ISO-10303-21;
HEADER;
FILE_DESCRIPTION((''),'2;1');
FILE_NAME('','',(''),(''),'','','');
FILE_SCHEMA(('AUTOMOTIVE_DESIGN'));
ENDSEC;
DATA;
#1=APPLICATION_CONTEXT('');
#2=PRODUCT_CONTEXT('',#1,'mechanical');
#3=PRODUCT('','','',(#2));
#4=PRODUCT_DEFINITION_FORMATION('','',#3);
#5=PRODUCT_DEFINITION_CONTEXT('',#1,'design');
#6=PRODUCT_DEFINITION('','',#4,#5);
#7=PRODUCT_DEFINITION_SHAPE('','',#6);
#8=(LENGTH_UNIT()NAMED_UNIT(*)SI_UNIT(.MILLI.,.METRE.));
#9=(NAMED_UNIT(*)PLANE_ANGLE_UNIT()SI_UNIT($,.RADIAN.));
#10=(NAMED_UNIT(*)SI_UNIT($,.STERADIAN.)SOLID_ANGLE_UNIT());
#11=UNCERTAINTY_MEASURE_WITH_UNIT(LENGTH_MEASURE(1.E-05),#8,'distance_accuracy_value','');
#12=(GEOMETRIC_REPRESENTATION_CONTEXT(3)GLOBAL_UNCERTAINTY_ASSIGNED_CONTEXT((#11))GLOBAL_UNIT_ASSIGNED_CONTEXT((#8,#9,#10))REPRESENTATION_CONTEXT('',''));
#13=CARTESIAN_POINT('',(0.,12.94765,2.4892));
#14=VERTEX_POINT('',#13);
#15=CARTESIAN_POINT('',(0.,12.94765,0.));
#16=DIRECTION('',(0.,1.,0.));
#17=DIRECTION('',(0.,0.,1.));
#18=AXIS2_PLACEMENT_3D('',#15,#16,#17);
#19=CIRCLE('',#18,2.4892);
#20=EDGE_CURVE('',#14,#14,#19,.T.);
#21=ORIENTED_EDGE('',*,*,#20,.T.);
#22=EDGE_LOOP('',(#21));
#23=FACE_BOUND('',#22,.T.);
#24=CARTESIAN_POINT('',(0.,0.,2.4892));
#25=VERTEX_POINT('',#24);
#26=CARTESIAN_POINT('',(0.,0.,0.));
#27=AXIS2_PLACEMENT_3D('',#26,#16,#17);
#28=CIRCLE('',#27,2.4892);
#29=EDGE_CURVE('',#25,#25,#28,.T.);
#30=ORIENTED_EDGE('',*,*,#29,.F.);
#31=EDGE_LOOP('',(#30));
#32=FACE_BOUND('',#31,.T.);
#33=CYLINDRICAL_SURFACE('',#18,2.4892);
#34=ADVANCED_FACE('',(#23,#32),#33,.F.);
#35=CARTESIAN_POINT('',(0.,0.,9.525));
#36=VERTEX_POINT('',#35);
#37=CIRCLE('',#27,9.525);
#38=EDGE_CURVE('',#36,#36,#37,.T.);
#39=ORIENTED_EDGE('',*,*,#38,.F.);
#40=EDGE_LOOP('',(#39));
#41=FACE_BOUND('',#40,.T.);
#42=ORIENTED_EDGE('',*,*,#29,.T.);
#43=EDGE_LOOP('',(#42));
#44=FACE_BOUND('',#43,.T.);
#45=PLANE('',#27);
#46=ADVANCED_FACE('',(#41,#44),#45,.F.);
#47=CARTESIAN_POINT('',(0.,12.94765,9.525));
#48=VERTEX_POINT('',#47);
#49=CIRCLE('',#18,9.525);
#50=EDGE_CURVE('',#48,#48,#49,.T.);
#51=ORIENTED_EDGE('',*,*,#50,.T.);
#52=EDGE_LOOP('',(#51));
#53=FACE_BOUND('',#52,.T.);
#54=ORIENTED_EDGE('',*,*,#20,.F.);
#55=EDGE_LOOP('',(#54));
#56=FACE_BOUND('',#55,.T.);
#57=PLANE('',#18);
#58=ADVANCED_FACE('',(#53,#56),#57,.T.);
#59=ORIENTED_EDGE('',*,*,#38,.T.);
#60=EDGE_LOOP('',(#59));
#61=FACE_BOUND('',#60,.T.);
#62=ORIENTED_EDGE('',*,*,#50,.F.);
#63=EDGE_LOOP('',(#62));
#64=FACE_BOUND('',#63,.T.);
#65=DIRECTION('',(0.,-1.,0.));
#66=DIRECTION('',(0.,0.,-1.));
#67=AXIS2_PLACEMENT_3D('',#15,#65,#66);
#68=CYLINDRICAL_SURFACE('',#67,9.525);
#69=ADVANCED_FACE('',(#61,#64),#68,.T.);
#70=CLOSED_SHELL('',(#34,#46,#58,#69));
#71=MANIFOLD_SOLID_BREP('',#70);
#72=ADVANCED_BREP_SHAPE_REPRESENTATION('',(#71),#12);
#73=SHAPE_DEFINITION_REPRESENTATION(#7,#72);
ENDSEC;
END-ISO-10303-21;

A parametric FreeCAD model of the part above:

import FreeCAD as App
import Part
import Sketcher
from FreeCAD import Vector
Q = App.Units.Quantity

doc = App.newDocument("Part")
body = doc.addObject("PartDesign::Body", "Body")

sketch1 = body.newObject("Sketcher::SketchObject", "Sketch")
sketch1.AttachmentSupport = (doc.getObject("XZ_Plane"), [""])
sketch1.MapMode = "FlatFace"
sketch1.addGeometry(Part.Circle(Vector(0, 0, 0), Vector(0, 0, 1), 10), False)
sketch1.addConstraint([
    Sketcher.Constraint("Coincident", 0, 3, -1, 1),
    Sketcher.Constraint("Diameter", 0, Q("0.75 in")),
])
pad1 = body.newObject("PartDesign::Pad", "Pad")
pad1.Profile = sketch1
pad1.Length = 12.94765
pad1.Reversed = True

sketch2 = body.newObject("Sketcher::SketchObject", "Sketch001")
sketch2.AttachmentSupport = (doc.getObject("XZ_Plane"), [""])
sketch2.MapMode = "FlatFace"
sketch2.AttachmentOffset = App.Placement(Vector(0, 0, -12.94765), App.Rotation())
sketch2.addGeometry(Part.Circle(Vector(0, 0, 0), Vector(0, 0, 1), 2.5), False)
sketch2.addConstraint([
    Sketcher.Constraint("Coincident", 0, 3, -1, 1),
    Sketcher.Constraint("Diameter", 0, Q("0.196 in")),
])
doc.recompute()
hole = body.newObject("PartDesign::Hole", "Hole")
hole.Profile = sketch2
hole.ThreadType = "None"
hole.Diameter = Q("0.196 in")
hole.DepthType = "ThroughAll"
hole.Reversed = True

doc.recompute()
